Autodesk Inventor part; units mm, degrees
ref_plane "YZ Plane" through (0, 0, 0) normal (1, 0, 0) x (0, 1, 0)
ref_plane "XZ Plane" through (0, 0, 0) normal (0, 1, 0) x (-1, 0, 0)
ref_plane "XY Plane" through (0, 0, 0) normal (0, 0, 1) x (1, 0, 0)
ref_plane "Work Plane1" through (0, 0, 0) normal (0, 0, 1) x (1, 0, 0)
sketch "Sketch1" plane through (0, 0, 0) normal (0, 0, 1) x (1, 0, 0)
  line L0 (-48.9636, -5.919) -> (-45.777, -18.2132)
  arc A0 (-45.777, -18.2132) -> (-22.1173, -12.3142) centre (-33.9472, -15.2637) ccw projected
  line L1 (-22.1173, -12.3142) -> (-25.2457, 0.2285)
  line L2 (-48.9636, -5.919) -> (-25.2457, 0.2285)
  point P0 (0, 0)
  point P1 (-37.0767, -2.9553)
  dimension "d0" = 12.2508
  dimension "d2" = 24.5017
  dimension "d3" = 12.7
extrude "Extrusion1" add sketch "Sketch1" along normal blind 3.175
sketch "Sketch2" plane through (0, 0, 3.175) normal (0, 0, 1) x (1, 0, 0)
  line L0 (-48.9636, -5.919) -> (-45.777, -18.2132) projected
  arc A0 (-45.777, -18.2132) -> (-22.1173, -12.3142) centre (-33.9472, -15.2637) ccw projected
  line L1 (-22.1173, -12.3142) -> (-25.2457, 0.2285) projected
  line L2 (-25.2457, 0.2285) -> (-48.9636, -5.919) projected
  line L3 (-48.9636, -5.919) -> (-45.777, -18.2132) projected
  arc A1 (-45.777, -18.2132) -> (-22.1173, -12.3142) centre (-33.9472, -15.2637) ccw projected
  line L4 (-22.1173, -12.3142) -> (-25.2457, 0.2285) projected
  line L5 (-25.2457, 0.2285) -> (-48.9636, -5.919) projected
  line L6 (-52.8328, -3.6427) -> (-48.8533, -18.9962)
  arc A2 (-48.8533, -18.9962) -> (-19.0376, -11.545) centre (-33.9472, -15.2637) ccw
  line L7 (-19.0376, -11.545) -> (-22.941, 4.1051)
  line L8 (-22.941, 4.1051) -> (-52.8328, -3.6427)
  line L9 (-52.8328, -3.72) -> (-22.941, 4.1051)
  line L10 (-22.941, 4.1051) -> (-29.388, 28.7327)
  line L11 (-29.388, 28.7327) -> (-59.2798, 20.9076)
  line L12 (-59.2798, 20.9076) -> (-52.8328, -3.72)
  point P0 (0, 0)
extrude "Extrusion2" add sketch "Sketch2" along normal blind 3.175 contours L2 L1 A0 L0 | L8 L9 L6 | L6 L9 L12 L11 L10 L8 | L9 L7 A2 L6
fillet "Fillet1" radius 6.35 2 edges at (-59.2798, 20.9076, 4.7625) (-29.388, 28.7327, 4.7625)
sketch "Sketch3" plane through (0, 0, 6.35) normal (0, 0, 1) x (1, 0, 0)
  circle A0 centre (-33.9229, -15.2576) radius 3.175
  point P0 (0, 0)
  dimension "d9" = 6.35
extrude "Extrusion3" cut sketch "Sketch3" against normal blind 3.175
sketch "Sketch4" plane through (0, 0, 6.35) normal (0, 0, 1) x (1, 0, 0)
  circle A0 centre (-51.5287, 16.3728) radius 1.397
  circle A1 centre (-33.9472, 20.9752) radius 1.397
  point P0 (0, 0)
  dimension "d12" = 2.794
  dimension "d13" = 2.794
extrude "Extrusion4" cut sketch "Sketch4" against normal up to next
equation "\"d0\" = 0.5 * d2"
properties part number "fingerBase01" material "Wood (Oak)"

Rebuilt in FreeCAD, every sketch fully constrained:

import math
import FreeCAD as App
import Part
import Sketcher
Q = App.Units.Quantity


def edges_at(feature, points):
    """Names of the edges that pass closest to the given points."""
    edges = feature.Shape.Edges
    near = lambda p: min(range(len(edges)), key=lambda i: edges[i].distToShape(Part.Vertex(*p))[0])
    return sorted({f"Edge{near(p) + 1}" for p in points})

doc = App.newDocument("Part")
body = doc.addObject("PartDesign::Body", "Body")

sketch1 = body.newObject("Sketcher::SketchObject", "Sketch")
sketch1.AttachmentSupport = (doc.getObject("XY_Plane"), [""])
sketch1.MapMode = "FlatFace"
sketch1.addGeometry([
    Part.LineSegment(App.Vector(-25, 0, 0), App.Vector(-49, -6, 0)),
    Part.LineSegment(App.Vector(-49, -6, 0), App.Vector(-46, -18, 0)),
    Part.ArcOfCircle(Part.Circle(App.Vector(-34, -15, 0), App.Vector(0, 0, 1), 12), math.radians(-166), math.radians(14)),
    Part.LineSegment(App.Vector(-22, -12, 0), App.Vector(-25, 0, 0)),
], False)
sketch1.addConstraint([
    Sketcher.Constraint("Coincident", 0, 2, 1, 1),
    Sketcher.Constraint("Coincident", 1, 2, 2, 1),
    Sketcher.Constraint("Tangent", 2, 2, 3, 1),
    Sketcher.Constraint("Coincident", 3, 2, 0, 1),
    Sketcher.Constraint("Perpendicular", 0, 1),
    Sketcher.Constraint("Radius", 2, Q("0.48 in")),
    Sketcher.Constraint("Distance", 0, 24.5016),
    Sketcher.Constraint("Distance", 1, 12.7005),
    Sketcher.Constraint("Angle", 0, Q("-165.4691 deg")),
    Sketcher.Constraint("DistanceY", -1, 1, 3, 2, Q("0.009 in")),
    Sketcher.Constraint("DistanceX", 2, 3, -1, 1, Q("1.3365 in")),
    Sketcher.Constraint("DistanceX", 0, 2, -1, 1, Q("1.9277 in")),
])
pad1 = body.newObject("PartDesign::Pad", "Pad")
pad1.Profile = sketch1
pad1.Length = Q("0.125 in")

sketch2 = body.newObject("Sketcher::SketchObject", "Sketch001")
sketch2.AttachmentSupport = (doc.getObject("XY_Plane"), [""])
sketch2.MapMode = "FlatFace"
sketch2.AttachmentOffset = App.Placement(App.Vector(0, 0, 0.125 * 25.4), App.Rotation())
sketch2.addGeometry([
    Part.LineSegment(App.Vector(-19.0376, -11.545, 0), App.Vector(-22.941, 4.1051, 0)),
    Part.LineSegment(App.Vector(-22.941, 4.1051, 0), App.Vector(-29.388, 28.7327, 0)),
    Part.LineSegment(App.Vector(-29.388, 28.7327, 0), App.Vector(-59.2798, 20.9076, 0)),
    Part.LineSegment(App.Vector(-59.2798, 20.9076, 0), App.Vector(-52.8328, -3.72, 0)),
    Part.LineSegment(App.Vector(-52.8328, -3.72, 0), App.Vector(-52.814038, -3.715088, 0)),
    Part.LineSegment(App.Vector(-52.814038, -3.715088, 0), App.Vector(-48.8533, -18.9962, 0)),
    Part.ArcOfCircle(Part.Circle(App.Vector(-33.9472, -15.2637, 0), App.Vector(0, 0, 1), 15.366306), math.radians(-165.942143), math.radians(14.004773)),
], False)
sketch2.addConstraint([
    Sketcher.Constraint("Coincident", 0, 2, 1, 1),
    Sketcher.Constraint("Coincident", 1, 2, 2, 1),
    Sketcher.Constraint("Coincident", 2, 2, 3, 1),
    Sketcher.Constraint("Coincident", 3, 2, 4, 1),
    Sketcher.Constraint("Coincident", 4, 2, 5, 1),
    Sketcher.Constraint("Coincident", 5, 2, 6, 1),
    Sketcher.Constraint("Coincident", 6, 2, 0, 1),
    Sketcher.Constraint("Radius", 6, 15.3663),
    Sketcher.Constraint("DistanceX", 1, 2, -1, 1, Q("1.157 in")),
    Sketcher.Constraint("DistanceX", 6, 3, 6, 2, Q("0.587 in")),
    Sketcher.Constraint("Distance", 2, Q("1.2165 in")),
    Sketcher.Constraint("Distance", 5, Q("0.6215 in")),
    Sketcher.Constraint("DistanceX", 6, 3, -1, 1, Q("1.3365 in")),
    Sketcher.Constraint("DistanceX", 0, 2, -1, 1, Q("0.9032 in")),
    Sketcher.Constraint("DistanceY", -1, 1, 1, 2, Q("1.1312 in")),
    Sketcher.Constraint("DistanceX", 4, 2, -1, 1, Q("2.0793 in")),
    Sketcher.Constraint("DistanceY", 0, 2, 1, 2, Q("0.9696 in")),
    Sketcher.Constraint("DistanceY", 3, 2, 2, 2, Q("0.9696 in")),
    Sketcher.Constraint("DistanceY", 3, 2, 4, 2, Q("0.0002 in")),
    Sketcher.Constraint("DistanceY", 5, 2, 0, 2, Q("0.9095 in")),
    Sketcher.Constraint("DistanceX", 2, 2, 5, 2, Q("0.4105 in")),
    Sketcher.Constraint("Distance", 3, 25.4575),
])
pad2 = body.newObject("PartDesign::Pad", "Pad001")
pad2.Profile = sketch2
pad2.Length = Q("0.125 in")
doc.recompute()

fillet = body.newObject("PartDesign::Fillet", "Fillet")
fillet.Base = (pad2, edges_at(pad2, [(-59.28, 20.908, 4.763), (-29.388, 28.733, 4.763)]))
fillet.Radius = Q("0.25 in")

sketch3 = body.newObject("Sketcher::SketchObject", "Sketch002")
sketch3.AttachmentSupport = (doc.getObject("XY_Plane"), [""])
sketch3.MapMode = "FlatFace"
sketch3.AttachmentOffset = App.Placement(App.Vector(0, 0, 0.25 * 25.4), App.Rotation())
sketch3.addGeometry(Part.Circle(App.Vector(-33.9, -15.3, 0), App.Vector(0, 0, 1), 3.2), False)
sketch3.addConstraint([
    Sketcher.Constraint("Diameter", 0, Q("0.25 in")),
    Sketcher.Constraint("DistanceY", 0, 3, -1, 1, Q("0.6007 in")),
    Sketcher.Constraint("DistanceX", 0, 3, -1, 1, 33.923),
])
pocket1 = body.newObject("PartDesign::Pocket", "Pocket")
pocket1.Profile = sketch3
pocket1.Length = Q("0.125 in")

sketch4 = body.newObject("Sketcher::SketchObject", "Sketch003")
sketch4.AttachmentSupport = (doc.getObject("XY_Plane"), [""])
sketch4.MapMode = "FlatFace"
sketch4.AttachmentOffset = App.Placement(App.Vector(0, 0, 0.25 * 25.4), App.Rotation())
sketch4.addGeometry([
    Part.Circle(App.Vector(-51.5, 16.4, 0), App.Vector(0, 0, 1), 1.4),
    Part.Circle(App.Vector(-33.9, 21, 0), App.Vector(0, 0, 1), 1.4),
], False)
sketch4.addConstraint([
    Sketcher.Constraint("Equal", 0, 1),
    Sketcher.Constraint("Diameter", 0, Q("0.11 in")),
    Sketcher.Constraint("DistanceX", 0, 3, -1, 1, Q("2.0287 in")),
    Sketcher.Constraint("DistanceY", -1, 1, 0, 3, Q("0.6446 in")),
    Sketcher.Constraint("DistanceX", 1, 3, -1, 1, Q("1.3365 in")),
    Sketcher.Constraint("DistanceY", -1, 1, 1, 3, Q("0.8258 in")),
])
pocket2 = body.newObject("PartDesign::Pocket", "Pocket001")
pocket2.Profile = sketch4
pocket2.Type = "UpToFirst"

doc.recompute()
